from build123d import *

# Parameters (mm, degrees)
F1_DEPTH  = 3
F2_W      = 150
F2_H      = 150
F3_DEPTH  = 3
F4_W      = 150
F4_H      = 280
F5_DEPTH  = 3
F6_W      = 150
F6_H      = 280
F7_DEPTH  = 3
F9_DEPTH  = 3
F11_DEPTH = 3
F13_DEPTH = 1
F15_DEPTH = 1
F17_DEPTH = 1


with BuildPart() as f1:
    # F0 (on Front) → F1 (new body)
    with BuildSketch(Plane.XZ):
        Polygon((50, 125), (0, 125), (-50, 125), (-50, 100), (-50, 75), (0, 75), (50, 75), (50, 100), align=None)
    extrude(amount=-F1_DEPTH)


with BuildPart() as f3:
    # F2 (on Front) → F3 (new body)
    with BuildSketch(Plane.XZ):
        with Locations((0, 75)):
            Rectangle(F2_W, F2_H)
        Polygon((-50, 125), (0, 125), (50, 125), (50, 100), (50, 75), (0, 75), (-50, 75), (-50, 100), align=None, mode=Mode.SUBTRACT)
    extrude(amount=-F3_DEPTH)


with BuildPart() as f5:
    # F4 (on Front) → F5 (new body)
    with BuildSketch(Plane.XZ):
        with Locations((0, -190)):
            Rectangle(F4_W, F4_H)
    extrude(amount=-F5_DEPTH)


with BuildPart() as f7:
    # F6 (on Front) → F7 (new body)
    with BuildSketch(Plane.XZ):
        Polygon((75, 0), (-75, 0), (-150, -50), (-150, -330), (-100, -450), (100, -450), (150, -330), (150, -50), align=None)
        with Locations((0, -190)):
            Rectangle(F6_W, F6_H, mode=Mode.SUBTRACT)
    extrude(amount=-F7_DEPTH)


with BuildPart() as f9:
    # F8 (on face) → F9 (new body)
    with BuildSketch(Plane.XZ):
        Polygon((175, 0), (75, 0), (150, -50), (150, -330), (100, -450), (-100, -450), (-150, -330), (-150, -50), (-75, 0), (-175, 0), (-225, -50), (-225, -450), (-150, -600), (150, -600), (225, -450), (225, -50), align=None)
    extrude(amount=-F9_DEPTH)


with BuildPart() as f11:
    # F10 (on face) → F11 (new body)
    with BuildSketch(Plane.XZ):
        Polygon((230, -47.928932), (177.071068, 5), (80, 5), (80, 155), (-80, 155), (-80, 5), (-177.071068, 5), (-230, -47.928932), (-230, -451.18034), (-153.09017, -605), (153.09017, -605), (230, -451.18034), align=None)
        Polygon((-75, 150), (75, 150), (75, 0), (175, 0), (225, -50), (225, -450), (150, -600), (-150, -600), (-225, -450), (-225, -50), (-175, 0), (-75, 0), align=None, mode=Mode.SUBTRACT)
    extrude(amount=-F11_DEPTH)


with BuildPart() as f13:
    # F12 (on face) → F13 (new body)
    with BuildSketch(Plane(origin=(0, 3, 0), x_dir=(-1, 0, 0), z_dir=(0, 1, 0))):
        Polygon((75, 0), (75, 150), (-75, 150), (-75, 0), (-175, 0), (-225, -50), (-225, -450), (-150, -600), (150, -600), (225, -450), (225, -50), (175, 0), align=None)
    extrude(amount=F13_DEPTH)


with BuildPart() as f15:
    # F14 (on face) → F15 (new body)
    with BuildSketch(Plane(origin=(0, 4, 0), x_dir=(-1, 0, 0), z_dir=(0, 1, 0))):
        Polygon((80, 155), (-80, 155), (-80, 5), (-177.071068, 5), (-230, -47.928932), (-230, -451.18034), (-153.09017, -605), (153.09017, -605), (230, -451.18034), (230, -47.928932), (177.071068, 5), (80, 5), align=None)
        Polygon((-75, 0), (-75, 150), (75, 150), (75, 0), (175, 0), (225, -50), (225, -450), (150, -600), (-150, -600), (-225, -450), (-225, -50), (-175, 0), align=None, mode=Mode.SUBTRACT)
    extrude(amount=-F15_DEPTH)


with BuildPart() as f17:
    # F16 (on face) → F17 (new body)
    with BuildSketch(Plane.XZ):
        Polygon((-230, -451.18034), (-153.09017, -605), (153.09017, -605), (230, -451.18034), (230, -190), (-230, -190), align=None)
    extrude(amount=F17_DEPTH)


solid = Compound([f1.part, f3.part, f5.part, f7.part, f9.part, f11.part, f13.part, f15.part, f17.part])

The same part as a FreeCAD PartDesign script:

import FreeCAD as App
import Part
import Sketcher
Q = App.Units.Quantity

doc = App.newDocument("Part")
body = doc.addObject("PartDesign::Body", "Body")

# Sketch on XZ plane
sketch1 = doc.addObject("Sketcher::SketchObject", "Sketch")
body.addObject(sketch1)
sketch1.AttachmentSupport = (doc.XZ_Plane, [""])
sketch1.MapMode = "FlatFace"
sketch1.addGeometry(Part.LineSegment(App.Vector(50, 125, 0), App.Vector(-50, 125, 0)), False)
sketch1.addGeometry(Part.LineSegment(App.Vector(-50, 125, 0), App.Vector(-50, 75, 0)), False)
sketch1.addGeometry(Part.LineSegment(App.Vector(-50, 75, 0), App.Vector(50, 75, 0)), False)
sketch1.addGeometry(Part.LineSegment(App.Vector(50, 75, 0), App.Vector(50, 125, 0)), False)
sketch1.addConstraint(Sketcher.Constraint("Coincident", 0, 2, 1, 1))
sketch1.addConstraint(Sketcher.Constraint("Coincident", 1, 2, 2, 1))
sketch1.addConstraint(Sketcher.Constraint("Coincident", 2, 2, 3, 1))
sketch1.addConstraint(Sketcher.Constraint("Coincident", 3, 2, 0, 1))
sketch1.addConstraint(Sketcher.Constraint("Horizontal", 0))
sketch1.addConstraint(Sketcher.Constraint("Vertical", 1))
sketch1.addConstraint(Sketcher.Constraint("Horizontal", 2))
sketch1.addConstraint(Sketcher.Constraint("Vertical", 3))
sketch1.addConstraint(Sketcher.Constraint("DistanceX", 0, 2, 0, 1, Q("100 mm")))
sketch1.addConstraint(Sketcher.Constraint("DistanceY", 1, 2, 1, 1, Q("50 mm")))
sketch1.addConstraint(Sketcher.Constraint("DistanceX", 0, 2, -1, 1, Q("50 mm")))
sketch1.addConstraint(Sketcher.Constraint("DistanceY", -1, 1, 0, 2, Q("125 mm")))
pad1 = doc.addObject("PartDesign::Pad", "Pad")
body.addObject(pad1)
pad1.Profile = sketch1
pad1.Length = 3
pad1.Reversed = True
body2 = doc.addObject("PartDesign::Body", "Body001")

# Sketch on XZ plane
sketch2 = doc.addObject("Sketcher::SketchObject", "Sketch001")
body2.addObject(sketch2)
sketch2.AttachmentSupport = (doc.getObject("XZ_Plane001"), [""])
sketch2.MapMode = "FlatFace"
sketch2.addGeometry(Part.LineSegment(App.Vector(-75, 150, 0), App.Vector(-75, 0, 0)), False)
sketch2.addGeometry(Part.LineSegment(App.Vector(-75, 0, 0), App.Vector(75, 0, 0)), False)
sketch2.addGeometry(Part.LineSegment(App.Vector(75, 0, 0), App.Vector(75, 150, 0)), False)
sketch2.addGeometry(Part.LineSegment(App.Vector(75, 150, 0), App.Vector(-75, 150, 0)), False)
sketch2.addGeometry(Part.LineSegment(App.Vector(-50, 75, 0), App.Vector(-50, 125, 0)), False)
sketch2.addGeometry(Part.LineSegment(App.Vector(-50, 125, 0), App.Vector(50, 125, 0)), False)
sketch2.addGeometry(Part.LineSegment(App.Vector(50, 125, 0), App.Vector(50, 75, 0)), False)
sketch2.addGeometry(Part.LineSegment(App.Vector(50, 75, 0), App.Vector(-50, 75, 0)), False)
sketch2.addConstraint(Sketcher.Constraint("Coincident", 0, 2, 1, 1))
sketch2.addConstraint(Sketcher.Constraint("Coincident", 1, 2, 2, 1))
sketch2.addConstraint(Sketcher.Constraint("Coincident", 2, 2, 3, 1))
sketch2.addConstraint(Sketcher.Constraint("Coincident", 3, 2, 0, 1))
sketch2.addConstraint(Sketcher.Constraint("Coincident", 4, 2, 5, 1))
sketch2.addConstraint(Sketcher.Constraint("Coincident", 5, 2, 6, 1))
sketch2.addConstraint(Sketcher.Constraint("Coincident", 6, 2, 7, 1))
sketch2.addConstraint(Sketcher.Constraint("Coincident", 7, 2, 4, 1))
sketch2.addConstraint(Sketcher.Constraint("Vertical", 0))
sketch2.addConstraint(Sketcher.Constraint("Horizontal", 1))
sketch2.addConstraint(Sketcher.Constraint("Vertical", 2))
sketch2.addConstraint(Sketcher.Constraint("Horizontal", 3))
sketch2.addConstraint(Sketcher.Constraint("Vertical", 4))
sketch2.addConstraint(Sketcher.Constraint("Horizontal", 5))
sketch2.addConstraint(Sketcher.Constraint("Vertical", 6))
sketch2.addConstraint(Sketcher.Constraint("Horizontal", 7))
sketch2.addConstraint(Sketcher.Constraint("Symmetric", 0, 2, 1, 2, -1, 1))
sketch2.addConstraint(Sketcher.Constraint("Equal", 3, 0))
sketch2.addConstraint(Sketcher.Constraint("DistanceX", 1, 1, 1, 2, Q("150 mm")))
sketch2.addConstraint(Sketcher.Constraint("DistanceX", 5, 1, 5, 2, Q("100 mm")))
sketch2.addConstraint(Sketcher.Constraint("DistanceY", 4, 1, 4, 2, Q("50 mm")))
sketch2.addConstraint(Sketcher.Constraint("DistanceX", 4, 2, -1, 1, Q("50 mm")))
sketch2.addConstraint(Sketcher.Constraint("DistanceY", -1, 1, 4, 2, Q("125 mm")))
pad2 = doc.addObject("PartDesign::Pad", "Pad001")
body2.addObject(pad2)
pad2.Profile = sketch2
pad2.Length = 3
pad2.Reversed = True
body3 = doc.addObject("PartDesign::Body", "Body002")

# Sketch on XZ plane
sketch3 = doc.addObject("Sketcher::SketchObject", "Sketch002")
body3.addObject(sketch3)
sketch3.AttachmentSupport = (doc.getObject("XZ_Plane002"), [""])
sketch3.MapMode = "FlatFace"
sketch3.addGeometry(Part.LineSegment(App.Vector(-75, -50, 0), App.Vector(-75, -330, 0)), False)
sketch3.addGeometry(Part.LineSegment(App.Vector(-75, -330, 0), App.Vector(75, -330, 0)), False)
sketch3.addGeometry(Part.LineSegment(App.Vector(75, -330, 0), App.Vector(75, -50, 0)), False)
sketch3.addGeometry(Part.LineSegment(App.Vector(75, -50, 0), App.Vector(-75, -50, 0)), False)
sketch3.addConstraint(Sketcher.Constraint("Coincident", 0, 2, 1, 1))
sketch3.addConstraint(Sketcher.Constraint("Coincident", 1, 2, 2, 1))
sketch3.addConstraint(Sketcher.Constraint("Coincident", 2, 2, 3, 1))
sketch3.addConstraint(Sketcher.Constraint("Coincident", 3, 2, 0, 1))
sketch3.addConstraint(Sketcher.Constraint("Vertical", 0))
sketch3.addConstraint(Sketcher.Constraint("Horizontal", 1))
sketch3.addConstraint(Sketcher.Constraint("Vertical", 2))
sketch3.addConstraint(Sketcher.Constraint("Horizontal", 3))
sketch3.addConstraint(Sketcher.Constraint("DistanceX", 1, 1, 1, 2, Q("150 mm")))
sketch3.addConstraint(Sketcher.Constraint("DistanceY", 0, 2, 0, 1, Q("280 mm")))
sketch3.addConstraint(Sketcher.Constraint("DistanceX", 0, 2, -1, 1, Q("75 mm")))
sketch3.addConstraint(Sketcher.Constraint("DistanceY", 0, 2, -1, 1, Q("330 mm")))
pad3 = doc.addObject("PartDesign::Pad", "Pad002")
body3.addObject(pad3)
pad3.Profile = sketch3
pad3.Length = 3
pad3.Reversed = True
body4 = doc.addObject("PartDesign::Body", "Body003")

# Sketch on XZ plane
sketch4 = doc.addObject("Sketcher::SketchObject", "Sketch003")
body4.addObject(sketch4)
sketch4.AttachmentSupport = (doc.getObject("XZ_Plane003"), [""])
sketch4.MapMode = "FlatFace"
sketch4.addGeometry(Part.LineSegment(App.Vector(75, 0, 0), App.Vector(-75, 0, 0)), False)
sketch4.addGeometry(Part.LineSegment(App.Vector(-75, 0, 0), App.Vector(-150, -50, 0)), False)
sketch4.addGeometry(Part.LineSegment(App.Vector(-150, -50, 0), App.Vector(-150, -330, 0)), False)
sketch4.addGeometry(Part.LineSegment(App.Vector(-150, -330, 0), App.Vector(-100, -450, 0)), False)
sketch4.addGeometry(Part.LineSegment(App.Vector(-100, -450, 0), App.Vector(100, -450, 0)), False)
sketch4.addGeometry(Part.LineSegment(App.Vector(100, -450, 0), App.Vector(150, -330, 0)), False)
sketch4.addGeometry(Part.LineSegment(App.Vector(150, -330, 0), App.Vector(150, -50, 0)), False)
sketch4.addGeometry(Part.LineSegment(App.Vector(150, -50, 0), App.Vector(75, 0, 0)), False)
sketch4.addGeometry(Part.LineSegment(App.Vector(75, -330, 0), App.Vector(-75, -330, 0)), False)
sketch4.addGeometry(Part.LineSegment(App.Vector(-75, -330, 0), App.Vector(-75, -50, 0)), False)
sketch4.addGeometry(Part.LineSegment(App.Vector(-75, -50, 0), App.Vector(75, -50, 0)), False)
sketch4.addGeometry(Part.LineSegment(App.Vector(75, -50, 0), App.Vector(75, -330, 0)), False)
sketch4.addConstraint(Sketcher.Constraint("Coincident", 0, 2, 1, 1))
sketch4.addConstraint(Sketcher.Constraint("Coincident", 1, 2, 2, 1))
sketch4.addConstraint(Sketcher.Constraint("Coincident", 2, 2, 3, 1))
sketch4.addConstraint(Sketcher.Constraint("Coincident", 3, 2, 4, 1))
sketch4.addConstraint(Sketcher.Constraint("Coincident", 4, 2, 5, 1))
sketch4.addConstraint(Sketcher.Constraint("Coincident", 5, 2, 6, 1))
sketch4.addConstraint(Sketcher.Constraint("Coincident", 6, 2, 7, 1))
sketch4.addConstraint(Sketcher.Constraint("Coincident", 7, 2, 0, 1))
sketch4.addConstraint(Sketcher.Constraint("Coincident", 8, 2, 9, 1))
sketch4.addConstraint(Sketcher.Constraint("Coincident", 9, 2, 10, 1))
sketch4.addConstraint(Sketcher.Constraint("Coincident", 10, 2, 11, 1))
sketch4.addConstraint(Sketcher.Constraint("Coincident", 11, 2, 8, 1))
sketch4.addConstraint(Sketcher.Constraint("Horizontal", 0))
sketch4.addConstraint(Sketcher.Constraint("Vertical", 2))
sketch4.addConstraint(Sketcher.Constraint("Horizontal", 4))
sketch4.addConstraint(Sketcher.Constraint("Vertical", 6))
sketch4.addConstraint(Sketcher.Constraint("Horizontal", 8))
sketch4.addConstraint(Sketcher.Constraint("Vertical", 9))
sketch4.addConstraint(Sketcher.Constraint("Horizontal", 10))
sketch4.addConstraint(Sketcher.Constraint("Vertical", 11))
sketch4.addConstraint(Sketcher.Constraint("Symmetric", 0, 2, 7, 2, -1, 1))
sketch4.addConstraint(Sketcher.Constraint("Symmetric", 2, 2, 5, 2, -2))
sketch4.addConstraint(Sketcher.Constraint("Horizontal", 1, 2, 6, 2))
sketch4.addConstraint(Sketcher.Constraint("Horizontal", 5, 2, 8, 2))
sketch4.addConstraint(Sketcher.Constraint("Horizontal", 6, 2, 9, 2))
sketch4.addConstraint(Sketcher.Constraint("Vertical", 0, 2, 8, 2))
sketch4.addConstraint(Sketcher.Constraint("Vertical", 7, 2, 10, 2))
sketch4.addConstraint(Sketcher.Constraint("Equal", 3, 5))
sketch4.addConstraint(Sketcher.Constraint("DistanceX", 0, 2, 0, 1, Q("150 mm")))
sketch4.addConstraint(Sketcher.Constraint("DistanceX", 4, 1, 4, 2, Q("200 mm")))
sketch4.addConstraint(Sketcher.Constraint("DistanceY", 2, 2, 2, 1, Q("280 mm")))
sketch4.addConstraint(Sketcher.Constraint("Distance", 3, Q("130 mm")))
sketch4.addConstraint(Sketcher.Constraint("DistanceX", 1, 2, -1, 1, Q("150 mm")))
sketch4.addConstraint(Sketcher.Constraint("DistanceY", 1, 2, -1, 1, Q("50 mm")))
pad4 = doc.addObject("PartDesign::Pad", "Pad003")
body4.addObject(pad4)
pad4.Profile = sketch4
pad4.Length = 3
pad4.Reversed = True
body5 = doc.addObject("PartDesign::Body", "Body004")

# Sketch on XZ plane
sketch5 = doc.addObject("Sketcher::SketchObject", "Sketch004")
body5.addObject(sketch5)
sketch5.AttachmentSupport = (doc.getObject("XZ_Plane004"), [""])
sketch5.MapMode = "FlatFace"
sketch5.addGeometry(Part.LineSegment(App.Vector(175, 0, 0), App.Vector(75, 0, 0)), False)
sketch5.addGeometry(Part.LineSegment(App.Vector(75, 0, 0), App.Vector(150, -50, 0)), False)
sketch5.addGeometry(Part.LineSegment(App.Vector(150, -50, 0), App.Vector(150, -330, 0)), False)
sketch5.addGeometry(Part.LineSegment(App.Vector(150, -330, 0), App.Vector(100, -450, 0)), False)
sketch5.addGeometry(Part.LineSegment(App.Vector(100, -450, 0), App.Vector(-100, -450, 0)), False)
sketch5.addGeometry(Part.LineSegment(App.Vector(-100, -450, 0), App.Vector(-150, -330, 0)), False)
sketch5.addGeometry(Part.LineSegment(App.Vector(-150, -330, 0), App.Vector(-150, -50, 0)), False)
sketch5.addGeometry(Part.LineSegment(App.Vector(-150, -50, 0), App.Vector(-75, 0, 0)), False)
sketch5.addGeometry(Part.LineSegment(App.Vector(-75, 0, 0), App.Vector(-175, 0, 0)), False)
sketch5.addGeometry(Part.LineSegment(App.Vector(-175, 0, 0), App.Vector(-225, -50, 0)), False)
sketch5.addGeometry(Part.LineSegment(App.Vector(-225, -50, 0), App.Vector(-225, -450, 0)), False)
sketch5.addGeometry(Part.LineSegment(App.Vector(-225, -450, 0), App.Vector(-150, -600, 0)), False)
sketch5.addGeometry(Part.LineSegment(App.Vector(-150, -600, 0), App.Vector(150, -600, 0)), False)
sketch5.addGeometry(Part.LineSegment(App.Vector(150, -600, 0), App.Vector(225, -450, 0)), False)
sketch5.addGeometry(Part.LineSegment(App.Vector(225, -450, 0), App.Vector(225, -50, 0)), False)
sketch5.addGeometry(Part.LineSegment(App.Vector(225, -50, 0), App.Vector(175, 0, 0)), False)
sketch5.addConstraint(Sketcher.Constraint("Coincident", 0, 2, 1, 1))
sketch5.addConstraint(Sketcher.Constraint("Coincident", 1, 2, 2, 1))
sketch5.addConstraint(Sketcher.Constraint("Coincident", 2, 2, 3, 1))
sketch5.addConstraint(Sketcher.Constraint("Coincident", 3, 2, 4, 1))
sketch5.addConstraint(Sketcher.Constraint("Coincident", 4, 2, 5, 1))
sketch5.addConstraint(Sketcher.Constraint("Coincident", 5, 2, 6, 1))
sketch5.addConstraint(Sketcher.Constraint("Coincident", 6, 2, 7, 1))
sketch5.addConstraint(Sketcher.Constraint("Coincident", 7, 2, 8, 1))
sketch5.addConstraint(Sketcher.Constraint("Coincident", 8, 2, 9, 1))
sketch5.addConstraint(Sketcher.Constraint("Coincident", 9, 2, 10, 1))
sketch5.addConstraint(Sketcher.Constraint("Coincident", 10, 2, 11, 1))
sketch5.addConstraint(Sketcher.Constraint("Coincident", 11, 2, 12, 1))
sketch5.addConstraint(Sketcher.Constraint("Coincident", 12, 2, 13, 1))
sketch5.addConstraint(Sketcher.Constraint("Coincident", 13, 2, 14, 1))
sketch5.addConstraint(Sketcher.Constraint("Coincident", 14, 2, 15, 1))
sketch5.addConstraint(Sketcher.Constraint("Coincident", 15, 2, 0, 1))
sketch5.addConstraint(Sketcher.Constraint("Horizontal", 0))
sketch5.addConstraint(Sketcher.Constraint("Vertical", 2))
sketch5.addConstraint(Sketcher.Constraint("Horizontal", 4))
sketch5.addConstraint(Sketcher.Constraint("Vertical", 6))
sketch5.addConstraint(Sketcher.Constraint("Horizontal", 8))
sketch5.addConstraint(Sketcher.Constraint("Vertical", 10))
sketch5.addConstraint(Sketcher.Constraint("Horizontal", 12))
sketch5.addConstraint(Sketcher.Constraint("Vertical", 14))
sketch5.addConstraint(Sketcher.Constraint("Symmetric", 0, 2, 7, 2, -1, 1))
sketch5.addConstraint(Sketcher.Constraint("Symmetric", 2, 2, 5, 2, -2))
sketch5.addConstraint(Sketcher.Constraint("Symmetric", 10, 2, 13, 2, -2))
sketch5.addConstraint(Sketcher.Constraint("Symmetric", 8, 2, 15, 2, -2))
sketch5.addConstraint(Sketcher.Constraint("Perpendicular", 9, 15))
sketch5.addConstraint(Sketcher.Constraint("Horizontal", 1, 2, 6, 2))
sketch5.addConstraint(Sketcher.Constraint("Horizontal", 6, 2, 9, 2))
sketch5.addConstraint(Sketcher.Constraint("Horizontal", 4, 2, 10, 2))
sketch5.addConstraint(Sketcher.Constraint("Horizontal", 9, 2, 14, 2))
sketch5.addConstraint(Sketcher.Constraint("Vertical", 6, 2, 11, 2))
sketch5.addConstraint(Sketcher.Constraint("Vertical", 2, 2, 12, 2))
sketch5.addConstraint(Sketcher.Constraint("Equal", 3, 5))
sketch5.addConstraint(Sketcher.Constraint("DistanceX", 0, 2, 0, 1, Q("100 mm")))
sketch5.addConstraint(Sketcher.Constraint("DistanceX", 4, 2, 4, 1, Q("200 mm")))
sketch5.addConstraint(Sketcher.Constraint("DistanceX", 12, 1, 12, 2, Q("300 mm")))
sketch5.addConstraint(Sketcher.Constraint("DistanceY", 2, 2, 2, 1, Q("280 mm")))
sketch5.addConstraint(Sketcher.Constraint("DistanceY", 10, 2, 10, 1, Q("400 mm")))
sketch5.addConstraint(Sketcher.Constraint("DistanceX", -1, 1, 0, 2, Q("75 mm")))
sketch5.addConstraint(Sketcher.Constraint("DistanceY", 1, 2, -1, 1, Q("50 mm")))
sketch5.addConstraint(Sketcher.Constraint("DistanceY", 11, 2, -1, 1, Q("600 mm")))
pad5 = doc.addObject("PartDesign::Pad", "Pad004")
body5.addObject(pad5)
pad5.Profile = sketch5
pad5.Length = 3
pad5.Reversed = True
body6 = doc.addObject("PartDesign::Body", "Body005")

# Sketch on XZ plane
sketch6 = doc.addObject("Sketcher::SketchObject", "Sketch005")
body6.addObject(sketch6)
sketch6.AttachmentSupport = (doc.getObject("XZ_Plane005"), [""])
sketch6.MapMode = "FlatFace"
sketch6.addGeometry(Part.LineSegment(App.Vector(230, -47.928932, 0), App.Vector(177.071068, 5, 0)), False)
sketch6.addGeometry(Part.LineSegment(App.Vector(177.071068, 5, 0), App.Vector(80, 5, 0)), False)
sketch6.addGeometry(Part.LineSegment(App.Vector(80, 5, 0), App.Vector(80, 155, 0)), False)
sketch6.addGeometry(Part.LineSegment(App.Vector(80, 155, 0), App.Vector(-80, 155, 0)), False)
sketch6.addGeometry(Part.LineSegment(App.Vector(-80, 155, 0), App.Vector(-80, 5, 0)), False)
sketch6.addGeometry(Part.LineSegment(App.Vector(-80, 5, 0), App.Vector(-177.071068, 5, 0)), False)
sketch6.addGeometry(Part.LineSegment(App.Vector(-177.071068, 5, 0), App.Vector(-230, -47.928932, 0)), False)
sketch6.addGeometry(Part.LineSegment(App.Vector(-230, -47.928932, 0), App.Vector(-230, -451.18034, 0)), False)
sketch6.addGeometry(Part.LineSegment(App.Vector(-230, -451.18034, 0), App.Vector(-153.09017, -605, 0)), False)
sketch6.addGeometry(Part.LineSegment(App.Vector(-153.09017, -605, 0), App.Vector(153.09017, -605, 0)), False)
sketch6.addGeometry(Part.LineSegment(App.Vector(153.09017, -605, 0), App.Vector(230, -451.18034, 0)), False)
sketch6.addGeometry(Part.LineSegment(App.Vector(230, -451.18034, 0), App.Vector(230, -47.928932, 0)), False)
sketch6.addGeometry(Part.LineSegment(App.Vector(-75, 0, 0), App.Vector(-75, 150, 0)), False)
sketch6.addGeometry(Part.LineSegment(App.Vector(-75, 150, 0), App.Vector(75, 150, 0)), False)
sketch6.addGeometry(Part.LineSegment(App.Vector(75, 150, 0), App.Vector(75, 0, 0)), False)
sketch6.addGeometry(Part.LineSegment(App.Vector(75, 0, 0), App.Vector(175, 0, 0)), False)
sketch6.addGeometry(Part.LineSegment(App.Vector(175, 0, 0), App.Vector(225, -50, 0)), False)
sketch6.addGeometry(Part.LineSegment(App.Vector(225, -50, 0), App.Vector(225, -450, 0)), False)
sketch6.addGeometry(Part.LineSegment(App.Vector(225, -450, 0), App.Vector(150, -600, 0)), False)
sketch6.addGeometry(Part.LineSegment(App.Vector(150, -600, 0), App.Vector(-150, -600, 0)), False)
sketch6.addGeometry(Part.LineSegment(App.Vector(-150, -600, 0), App.Vector(-225, -450, 0)), False)
sketch6.addGeometry(Part.LineSegment(App.Vector(-225, -450, 0), App.Vector(-225, -50, 0)), False)
sketch6.addGeometry(Part.LineSegment(App.Vector(-225, -50, 0), App.Vector(-175, 0, 0)), False)
sketch6.addGeometry(Part.LineSegment(App.Vector(-175, 0, 0), App.Vector(-75, 0, 0)), False)
sketch6.addConstraint(Sketcher.Constraint("Coincident", 0, 2, 1, 1))
sketch6.addConstraint(Sketcher.Constraint("Coincident", 1, 2, 2, 1))
sketch6.addConstraint(Sketcher.Constraint("Coincident", 2, 2, 3, 1))
sketch6.addConstraint(Sketcher.Constraint("Coincident", 3, 2, 4, 1))
sketch6.addConstraint(Sketcher.Constraint("Coincident", 4, 2, 5, 1))
sketch6.addConstraint(Sketcher.Constraint("Coincident", 5, 2, 6, 1))
sketch6.addConstraint(Sketcher.Constraint("Coincident", 6, 2, 7, 1))
sketch6.addConstraint(Sketcher.Constraint("Coincident", 7, 2, 8, 1))
sketch6.addConstraint(Sketcher.Constraint("Coincident", 8, 2, 9, 1))
sketch6.addConstraint(Sketcher.Constraint("Coincident", 9, 2, 10, 1))
sketch6.addConstraint(Sketcher.Constraint("Coincident", 10, 2, 11, 1))
sketch6.addConstraint(Sketcher.Constraint("Coincident", 11, 2, 0, 1))
sketch6.addConstraint(Sketcher.Constraint("Coincident", 12, 2, 13, 1))
sketch6.addConstraint(Sketcher.Constraint("Coincident", 13, 2, 14, 1))
sketch6.addConstraint(Sketcher.Constraint("Coincident", 14, 2, 15, 1))
sketch6.addConstraint(Sketcher.Constraint("Coincident", 15, 2, 16, 1))
sketch6.addConstraint(Sketcher.Constraint("Coincident", 16, 2, 17, 1))
sketch6.addConstraint(Sketcher.Constraint("Coincident", 17, 2, 18, 1))
sketch6.addConstraint(Sketcher.Constraint("Coincident", 18, 2, 19, 1))
sketch6.addConstraint(Sketcher.Constraint("Coincident", 19, 2, 20, 1))
sketch6.addConstraint(Sketcher.Constraint("Coincident", 20, 2, 21, 1))
sketch6.addConstraint(Sketcher.Constraint("Coincident", 21, 2, 22, 1))
sketch6.addConstraint(Sketcher.Constraint("Coincident", 22, 2, 23, 1))
sketch6.addConstraint(Sketcher.Constraint("Coincident", 23, 2, 12, 1))
sketch6.addConstraint(Sketcher.Constraint("Horizontal", 1))
sketch6.addConstraint(Sketcher.Constraint("Vertical", 2))
sketch6.addConstraint(Sketcher.Constraint("Horizontal", 3))
sketch6.addConstraint(Sketcher.Constraint("Vertical", 4))
sketch6.addConstraint(Sketcher.Constraint("Horizontal", 5))
sketch6.addConstraint(Sketcher.Constraint("Vertical", 7))
sketch6.addConstraint(Sketcher.Constraint("Horizontal", 9))
sketch6.addConstraint(Sketcher.Constraint("Vertical", 11))
sketch6.addConstraint(Sketcher.Constraint("Vertical", 12))
sketch6.addConstraint(Sketcher.Constraint("Horizontal", 13))
sketch6.addConstraint(Sketcher.Constraint("Vertical", 14))
sketch6.addConstraint(Sketcher.Constraint("Horizontal", 15))
sketch6.addConstraint(Sketcher.Constraint("Vertical", 17))
sketch6.addConstraint(Sketcher.Constraint("Horizontal", 19))
sketch6.addConstraint(Sketcher.Constraint("Vertical", 21))
sketch6.addConstraint(Sketcher.Constraint("Horizontal", 23))
sketch6.addConstraint(Sketcher.Constraint("Symmetric", 15, 2, 22, 2, -1, 1))
sketch6.addConstraint(Sketcher.Constraint("Symmetric", 1, 2, 4, 2, -2))
sketch6.addConstraint(Sketcher.Constraint("Symmetric", 7, 2, 10, 2, -2))
sketch6.addConstraint(Sketcher.Constraint("Symmetric", 17, 2, 20, 2, -2))
sketch6.addConstraint(Sketcher.Constraint("Symmetric", 14, 2, 23, 2, -2))
sketch6.addConstraint(Sketcher.Constraint("Perpendicular", 0, 6))
sketch6.addConstraint(Sketcher.Constraint("Perpendicular", 6, 16))
sketch6.addConstraint(Sketcher.Constraint("Parallel", 10, 18))
sketch6.addConstraint(Sketcher.Constraint("Parallel", 8, 20))
sketch6.addConstraint(Sketcher.Constraint("Perpendicular", 16, 22))
sketch6.addConstraint(Sketcher.Constraint("Horizontal", 6, 2, 11, 2))
sketch6.addConstraint(Sketcher.Constraint("Horizontal", 16, 2, 21, 2))
sketch6.addConstraint(Sketcher.Constraint("Equal", 13, 2))
sketch6.addConstraint(Sketcher.Constraint("Equal", 4, 12))
sketch6.addConstraint(Sketcher.Constraint("Equal", 8, 10))
sketch6.addConstraint(Sketcher.Constraint("DistanceX", 3, 2, 3, 1, Q("160 mm")))
sketch6.addConstraint(Sketcher.Constraint("DistanceX", 13, 1, 13, 2, Q("150 mm")))
sketch6.addConstraint(Sketcher.Constraint("DistanceX", 15, 1, 15, 2, Q("100 mm")))
sketch6.addConstraint(Sketcher.Constraint("DistanceX", 19, 2, 19, 1, Q("300 mm")))
sketch6.addConstraint(Sketcher.Constraint("DistanceY", 17, 2, 17, 1, Q("400 mm")))
sketch6.addConstraint(Sketcher.Constraint("DistanceY", -1, 1, 0, 2, Q("5 mm")))
sketch6.addConstraint(Sketcher.Constraint("DistanceX", 6, 2, -1, 1, Q("230 mm")))
sketch6.addConstraint(Sketcher.Constraint("DistanceY", 8, 2, -1, 1, Q("605 mm")))
sketch6.addConstraint(Sketcher.Constraint("DistanceX", -1, 1, 16, 2, Q("225 mm")))
sketch6.addConstraint(Sketcher.Constraint("DistanceY", 18, 2, -1, 1, Q("600 mm")))
sketch6.addConstraint(Sketcher.Constraint("DistanceX", 9, 1, 9, 2, Q("306.18034 mm")))
sketch6.addConstraint(Sketcher.Constraint("DistanceX", 1, 2, 1, 1, Q("97.071068 mm")))
pad6 = doc.addObject("PartDesign::Pad", "Pad005")
body6.addObject(pad6)
pad6.Profile = sketch6
pad6.Length = 3
pad6.Reversed = True
body7 = doc.addObject("PartDesign::Body", "Body006")

# Sketch on XZ plane
sketch7 = doc.addObject("Sketcher::SketchObject", "Sketch006")
body7.addObject(sketch7)
sketch7.AttachmentSupport = (doc.getObject("XZ_Plane006"), [""])
sketch7.MapMode = "FlatFace"
sketch7.AttachmentOffset = App.Placement(App.Vector(0, 0, -3), App.Rotation())
sketch7.addGeometry(Part.LineSegment(App.Vector(-75, 0, 0), App.Vector(-75, 150, 0)), False)
sketch7.addGeometry(Part.LineSegment(App.Vector(-75, 150, 0), App.Vector(75, 150, 0)), False)
sketch7.addGeometry(Part.LineSegment(App.Vector(75, 150, 0), App.Vector(75, 0, 0)), False)
sketch7.addGeometry(Part.LineSegment(App.Vector(75, 0, 0), App.Vector(175, 0, 0)), False)
sketch7.addGeometry(Part.LineSegment(App.Vector(175, 0, 0), App.Vector(225, -50, 0)), False)
sketch7.addGeometry(Part.LineSegment(App.Vector(225, -50, 0), App.Vector(225, -450, 0)), False)
sketch7.addGeometry(Part.LineSegment(App.Vector(225, -450, 0), App.Vector(150, -600, 0)), False)
sketch7.addGeometry(Part.LineSegment(App.Vector(150, -600, 0), App.Vector(-150, -600, 0)), False)
sketch7.addGeometry(Part.LineSegment(App.Vector(-150, -600, 0), App.Vector(-225, -450, 0)), False)
sketch7.addGeometry(Part.LineSegment(App.Vector(-225, -450, 0), App.Vector(-225, -50, 0)), False)
sketch7.addGeometry(Part.LineSegment(App.Vector(-225, -50, 0), App.Vector(-175, 0, 0)), False)
sketch7.addGeometry(Part.LineSegment(App.Vector(-175, 0, 0), App.Vector(-75, 0, 0)), False)
sketch7.addConstraint(Sketcher.Constraint("Coincident", 0, 2, 1, 1))
sketch7.addConstraint(Sketcher.Constraint("Coincident", 1, 2, 2, 1))
sketch7.addConstraint(Sketcher.Constraint("Coincident", 2, 2, 3, 1))
sketch7.addConstraint(Sketcher.Constraint("Coincident", 3, 2, 4, 1))
sketch7.addConstraint(Sketcher.Constraint("Coincident", 4, 2, 5, 1))
sketch7.addConstraint(Sketcher.Constraint("Coincident", 5, 2, 6, 1))
sketch7.addConstraint(Sketcher.Constraint("Coincident", 6, 2, 7, 1))
sketch7.addConstraint(Sketcher.Constraint("Coincident", 7, 2, 8, 1))
sketch7.addConstraint(Sketcher.Constraint("Coincident", 8, 2, 9, 1))
sketch7.addConstraint(Sketcher.Constraint("Coincident", 9, 2, 10, 1))
sketch7.addConstraint(Sketcher.Constraint("Coincident", 10, 2, 11, 1))
sketch7.addConstraint(Sketcher.Constraint("Coincident", 11, 2, 0, 1))
sketch7.addConstraint(Sketcher.Constraint("Vertical", 0))
sketch7.addConstraint(Sketcher.Constraint("Horizontal", 1))
sketch7.addConstraint(Sketcher.Constraint("Vertical", 2))
sketch7.addConstraint(Sketcher.Constraint("Horizontal", 3))
sketch7.addConstraint(Sketcher.Constraint("Vertical", 5))
sketch7.addConstraint(Sketcher.Constraint("Horizontal", 7))
sketch7.addConstraint(Sketcher.Constraint("Vertical", 9))
sketch7.addConstraint(Sketcher.Constraint("Horizontal", 11))
sketch7.addConstraint(Sketcher.Constraint("Symmetric", 3, 2, 10, 2, -1, 1))
sketch7.addConstraint(Sketcher.Constraint("Symmetric", 5, 2, 8, 2, -2))
sketch7.addConstraint(Sketcher.Constraint("Symmetric", 2, 2, 11, 2, -2))
sketch7.addConstraint(Sketcher.Constraint("Perpendicular", 4, 10))
sketch7.addConstraint(Sketcher.Constraint("Horizontal", 4, 2, 9, 2))
sketch7.addConstraint(Sketcher.Constraint("Equal", 1, 0))
sketch7.addConstraint(Sketcher.Constraint("Equal", 6, 8))
sketch7.addConstraint(Sketcher.Constraint("DistanceX", 1, 1, 1, 2, Q("150 mm")))
sketch7.addConstraint(Sketcher.Constraint("DistanceX", 3, 1, 3, 2, Q("100 mm")))
sketch7.addConstraint(Sketcher.Constraint("DistanceX", 7, 2, 7, 1, Q("300 mm")))
sketch7.addConstraint(Sketcher.Constraint("DistanceY", 5, 2, 5, 1, Q("400 mm")))
sketch7.addConstraint(Sketcher.Constraint("DistanceX", -1, 1, 4, 2, Q("225 mm")))
sketch7.addConstraint(Sketcher.Constraint("DistanceY", 6, 2, -1, 1, Q("600 mm")))
pad7 = doc.addObject("PartDesign::Pad", "Pad006")
body7.addObject(pad7)
pad7.Profile = sketch7
pad7.Length = 1
pad7.Reversed = True
body8 = doc.addObject("PartDesign::Body", "Body007")

# Sketch on XZ plane
sketch8 = doc.addObject("Sketcher::SketchObject", "Sketch007")
body8.addObject(sketch8)
sketch8.AttachmentSupport = (doc.getObject("XZ_Plane007"), [""])
sketch8.MapMode = "FlatFace"
sketch8.AttachmentOffset = App.Placement(App.Vector(0, 0, -4), App.Rotation())
sketch8.addGeometry(Part.LineSegment(App.Vector(-80, 155, 0), App.Vector(80, 155, 0)), False)
sketch8.addGeometry(Part.LineSegment(App.Vector(80, 155, 0), App.Vector(80, 5, 0)), False)
sketch8.addGeometry(Part.LineSegment(App.Vector(80, 5, 0), App.Vector(177.071068, 5, 0)), False)
sketch8.addGeometry(Part.LineSegment(App.Vector(177.071068, 5, 0), App.Vector(230, -47.928932, 0)), False)
sketch8.addGeometry(Part.LineSegment(App.Vector(230, -47.928932, 0), App.Vector(230, -451.18034, 0)), False)
sketch8.addGeometry(Part.LineSegment(App.Vector(230, -451.18034, 0), App.Vector(153.09017, -605, 0)), False)
sketch8.addGeometry(Part.LineSegment(App.Vector(153.09017, -605, 0), App.Vector(-153.09017, -605, 0)), False)
sketch8.addGeometry(Part.LineSegment(App.Vector(-153.09017, -605, 0), App.Vector(-230, -451.18034, 0)), False)
sketch8.addGeometry(Part.LineSegment(App.Vector(-230, -451.18034, 0), App.Vector(-230, -47.928932, 0)), False)
sketch8.addGeometry(Part.LineSegment(App.Vector(-230, -47.928932, 0), App.Vector(-177.071068, 5, 0)), False)
sketch8.addGeometry(Part.LineSegment(App.Vector(-177.071068, 5, 0), App.Vector(-80, 5, 0)), False)
sketch8.addGeometry(Part.LineSegment(App.Vector(-80, 5, 0), App.Vector(-80, 155, 0)), False)
sketch8.addGeometry(Part.LineSegment(App.Vector(175, 0, 0), App.Vector(75, 0, 0)), False)
sketch8.addGeometry(Part.LineSegment(App.Vector(75, 0, 0), App.Vector(75, 150, 0)), False)
sketch8.addGeometry(Part.LineSegment(App.Vector(75, 150, 0), App.Vector(-75, 150, 0)), False)
sketch8.addGeometry(Part.LineSegment(App.Vector(-75, 150, 0), App.Vector(-75, 0, 0)), False)
sketch8.addGeometry(Part.LineSegment(App.Vector(-75, 0, 0), App.Vector(-175, 0, 0)), False)
sketch8.addGeometry(Part.LineSegment(App.Vector(-175, 0, 0), App.Vector(-225, -50, 0)), False)
sketch8.addGeometry(Part.LineSegment(App.Vector(-225, -50, 0), App.Vector(-225, -450, 0)), False)
sketch8.addGeometry(Part.LineSegment(App.Vector(-225, -450, 0), App.Vector(-150, -600, 0)), False)
sketch8.addGeometry(Part.LineSegment(App.Vector(-150, -600, 0), App.Vector(150, -600, 0)), False)
sketch8.addGeometry(Part.LineSegment(App.Vector(150, -600, 0), App.Vector(225, -450, 0)), False)
sketch8.addGeometry(Part.LineSegment(App.Vector(225, -450, 0), App.Vector(225, -50, 0)), False)
sketch8.addGeometry(Part.LineSegment(App.Vector(225, -50, 0), App.Vector(175, 0, 0)), False)
sketch8.addConstraint(Sketcher.Constraint("Coincident", 0, 2, 1, 1))
sketch8.addConstraint(Sketcher.Constraint("Coincident", 1, 2, 2, 1))
sketch8.addConstraint(Sketcher.Constraint("Coincident", 2, 2, 3, 1))
sketch8.addConstraint(Sketcher.Constraint("Coincident", 3, 2, 4, 1))
sketch8.addConstraint(Sketcher.Constraint("Coincident", 4, 2, 5, 1))
sketch8.addConstraint(Sketcher.Constraint("Coincident", 5, 2, 6, 1))
sketch8.addConstraint(Sketcher.Constraint("Coincident", 6, 2, 7, 1))
sketch8.addConstraint(Sketcher.Constraint("Coincident", 7, 2, 8, 1))
sketch8.addConstraint(Sketcher.Constraint("Coincident", 8, 2, 9, 1))
sketch8.addConstraint(Sketcher.Constraint("Coincident", 9, 2, 10, 1))
sketch8.addConstraint(Sketcher.Constraint("Coincident", 10, 2, 11, 1))
sketch8.addConstraint(Sketcher.Constraint("Coincident", 11, 2, 0, 1))
sketch8.addConstraint(Sketcher.Constraint("Coincident", 12, 2, 13, 1))
sketch8.addConstraint(Sketcher.Constraint("Coincident", 13, 2, 14, 1))
sketch8.addConstraint(Sketcher.Constraint("Coincident", 14, 2, 15, 1))
sketch8.addConstraint(Sketcher.Constraint("Coincident", 15, 2, 16, 1))
sketch8.addConstraint(Sketcher.Constraint("Coincident", 16, 2, 17, 1))
sketch8.addConstraint(Sketcher.Constraint("Coincident", 17, 2, 18, 1))
sketch8.addConstraint(Sketcher.Constraint("Coincident", 18, 2, 19, 1))
sketch8.addConstraint(Sketcher.Constraint("Coincident", 19, 2, 20, 1))
sketch8.addConstraint(Sketcher.Constraint("Coincident", 20, 2, 21, 1))
sketch8.addConstraint(Sketcher.Constraint("Coincident", 21, 2, 22, 1))
sketch8.addConstraint(Sketcher.Constraint("Coincident", 22, 2, 23, 1))
sketch8.addConstraint(Sketcher.Constraint("Coincident", 23, 2, 12, 1))
sketch8.addConstraint(Sketcher.Constraint("Horizontal", 0))
sketch8.addConstraint(Sketcher.Constraint("Vertical", 1))
sketch8.addConstraint(Sketcher.Constraint("Horizontal", 2))
sketch8.addConstraint(Sketcher.Constraint("Vertical", 4))
sketch8.addConstraint(Sketcher.Constraint("Horizontal", 6))
sketch8.addConstraint(Sketcher.Constraint("Vertical", 8))
sketch8.addConstraint(Sketcher.Constraint("Horizontal", 10))
sketch8.addConstraint(Sketcher.Constraint("Vertical", 11))
sketch8.addConstraint(Sketcher.Constraint("Horizontal", 12))
sketch8.addConstraint(Sketcher.Constraint("Vertical", 13))
sketch8.addConstraint(Sketcher.Constraint("Horizontal", 14))
sketch8.addConstraint(Sketcher.Constraint("Vertical", 15))
sketch8.addConstraint(Sketcher.Constraint("Horizontal", 16))
sketch8.addConstraint(Sketcher.Constraint("Vertical", 18))
sketch8.addConstraint(Sketcher.Constraint("Horizontal", 20))
sketch8.addConstraint(Sketcher.Constraint("Vertical", 22))
sketch8.addConstraint(Sketcher.Constraint("Symmetric", 12, 2, 15, 2, -1, 1))
sketch8.addConstraint(Sketcher.Constraint("Symmetric", 4, 2, 7, 2, -2))
sketch8.addConstraint(Sketcher.Constraint("Symmetric", 2, 2, 9, 2, -2))
sketch8.addConstraint(Sketcher.Constraint("Symmetric", 18, 2, 21, 2, -2))
sketch8.addConstraint(Sketcher.Constraint("Symmetric", 16, 2, 23, 2, -2))
sketch8.addConstraint(Sketcher.Constraint("Perpendicular", 3, 9))
sketch8.addConstraint(Sketcher.Constraint("Parallel", 9, 17))
sketch8.addConstraint(Sketcher.Constraint("Parallel", 7, 19))
sketch8.addConstraint(Sketcher.Constraint("Parallel", 5, 21))
sketch8.addConstraint(Sketcher.Constraint("Perpendicular", 17, 23))
sketch8.addConstraint(Sketcher.Constraint("Horizontal", 3, 2, 8, 2))
sketch8.addConstraint(Sketcher.Constraint("Equal", 2, 10))
sketch8.addConstraint(Sketcher.Constraint("Equal", 14, 1))
sketch8.addConstraint(Sketcher.Constraint("Equal", 11, 13))
sketch8.addConstraint(Sketcher.Constraint("Equal", 5, 7))
sketch8.addConstraint(Sketcher.Constraint("DistanceX", 0, 1, 0, 2, Q("160 mm")))
sketch8.addConstraint(Sketcher.Constraint("DistanceX", 12, 2, 12, 1, Q("100 mm")))
sketch8.addConstraint(Sketcher.Constraint("DistanceX", 14, 2, 14, 1, Q("150 mm")))
sketch8.addConstraint(Sketcher.Constraint("DistanceX", 20, 1, 20, 2, Q("300 mm")))
sketch8.addConstraint(Sketcher.Constraint("DistanceY", 18, 2, 18, 1, Q("400 mm")))
sketch8.addConstraint(Sketcher.Constraint("DistanceY", -1, 1, 0, 2, Q("155 mm")))
sketch8.addConstraint(Sketcher.Constraint("DistanceX", -1, 1, 3, 2, Q("230 mm")))
sketch8.addConstraint(Sketcher.Constraint("DistanceY", 5, 2, -1, 1, Q("605 mm")))
sketch8.addConstraint(Sketcher.Constraint("DistanceX", 17, 2, -1, 1, Q("225 mm")))
sketch8.addConstraint(Sketcher.Constraint("DistanceY", 19, 2, -1, 1, Q("600 mm")))
sketch8.addConstraint(Sketcher.Constraint("DistanceX", 6, 2, 6, 1, Q("306.18034 mm")))
sketch8.addConstraint(Sketcher.Constraint("DistanceX", 2, 1, 2, 2, Q("97.071068 mm")))
pad8 = doc.addObject("PartDesign::Pad", "Pad007")
body8.addObject(pad8)
pad8.Profile = sketch8
pad8.Length = 1
body9 = doc.addObject("PartDesign::Body", "Body008")

# Sketch on XZ plane
sketch9 = doc.addObject("Sketcher::SketchObject", "Sketch008")
body9.addObject(sketch9)
sketch9.AttachmentSupport = (doc.getObject("XZ_Plane008"), [""])
sketch9.MapMode = "FlatFace"
sketch9.addGeometry(Part.LineSegment(App.Vector(-230, -451.18034, 0), App.Vector(-153.09017, -605, 0)), False)
sketch9.addGeometry(Part.LineSegment(App.Vector(-153.09017, -605, 0), App.Vector(153.09017, -605, 0)), False)
sketch9.addGeometry(Part.LineSegment(App.Vector(153.09017, -605, 0), App.Vector(230, -451.18034, 0)), False)
sketch9.addGeometry(Part.LineSegment(App.Vector(230, -451.18034, 0), App.Vector(230, -190, 0)), False)
sketch9.addGeometry(Part.LineSegment(App.Vector(230, -190, 0), App.Vector(-230, -190, 0)), False)
sketch9.addGeometry(Part.LineSegment(App.Vector(-230, -190, 0), App.Vector(-230, -451.18034, 0)), False)
sketch9.addConstraint(Sketcher.Constraint("Coincident", 0, 2, 1, 1))
sketch9.addConstraint(Sketcher.Constraint("Coincident", 1, 2, 2, 1))
sketch9.addConstraint(Sketcher.Constraint("Coincident", 2, 2, 3, 1))
sketch9.addConstraint(Sketcher.Constraint("Coincident", 3, 2, 4, 1))
sketch9.addConstraint(Sketcher.Constraint("Coincident", 4, 2, 5, 1))
sketch9.addConstraint(Sketcher.Constraint("Coincident", 5, 2, 0, 1))
sketch9.addConstraint(Sketcher.Constraint("Horizontal", 1))
sketch9.addConstraint(Sketcher.Constraint("Vertical", 3))
sketch9.addConstraint(Sketcher.Constraint("Horizontal", 4))
sketch9.addConstraint(Sketcher.Constraint("Vertical", 5))
sketch9.addConstraint(Sketcher.Constraint("Symmetric", 2, 2, 5, 2, -2))
sketch9.addConstraint(Sketcher.Constraint("Equal", 0, 2))
sketch9.addConstraint(Sketcher.Constraint("DistanceX", 4, 2, 4, 1, Q("460 mm")))
sketch9.addConstraint(Sketcher.Constraint("DistanceY", 0, 2, -1, 1, Q("605 mm")))
sketch9.addConstraint(Sketcher.Constraint("DistanceY", 3, 2, -1, 1, Q("190 mm")))
sketch9.addConstraint(Sketcher.Constraint("DistanceX", 1, 1, 1, 2, Q("306.18034 mm")))
sketch9.addConstraint(Sketcher.Constraint("DistanceY", 3, 1, 3, 2, Q("261.18034 mm")))
pad9 = doc.addObject("PartDesign::Pad", "Pad008")
body9.addObject(pad9)
pad9.Profile = sketch9
pad9.Length = 1

doc.recompute()
